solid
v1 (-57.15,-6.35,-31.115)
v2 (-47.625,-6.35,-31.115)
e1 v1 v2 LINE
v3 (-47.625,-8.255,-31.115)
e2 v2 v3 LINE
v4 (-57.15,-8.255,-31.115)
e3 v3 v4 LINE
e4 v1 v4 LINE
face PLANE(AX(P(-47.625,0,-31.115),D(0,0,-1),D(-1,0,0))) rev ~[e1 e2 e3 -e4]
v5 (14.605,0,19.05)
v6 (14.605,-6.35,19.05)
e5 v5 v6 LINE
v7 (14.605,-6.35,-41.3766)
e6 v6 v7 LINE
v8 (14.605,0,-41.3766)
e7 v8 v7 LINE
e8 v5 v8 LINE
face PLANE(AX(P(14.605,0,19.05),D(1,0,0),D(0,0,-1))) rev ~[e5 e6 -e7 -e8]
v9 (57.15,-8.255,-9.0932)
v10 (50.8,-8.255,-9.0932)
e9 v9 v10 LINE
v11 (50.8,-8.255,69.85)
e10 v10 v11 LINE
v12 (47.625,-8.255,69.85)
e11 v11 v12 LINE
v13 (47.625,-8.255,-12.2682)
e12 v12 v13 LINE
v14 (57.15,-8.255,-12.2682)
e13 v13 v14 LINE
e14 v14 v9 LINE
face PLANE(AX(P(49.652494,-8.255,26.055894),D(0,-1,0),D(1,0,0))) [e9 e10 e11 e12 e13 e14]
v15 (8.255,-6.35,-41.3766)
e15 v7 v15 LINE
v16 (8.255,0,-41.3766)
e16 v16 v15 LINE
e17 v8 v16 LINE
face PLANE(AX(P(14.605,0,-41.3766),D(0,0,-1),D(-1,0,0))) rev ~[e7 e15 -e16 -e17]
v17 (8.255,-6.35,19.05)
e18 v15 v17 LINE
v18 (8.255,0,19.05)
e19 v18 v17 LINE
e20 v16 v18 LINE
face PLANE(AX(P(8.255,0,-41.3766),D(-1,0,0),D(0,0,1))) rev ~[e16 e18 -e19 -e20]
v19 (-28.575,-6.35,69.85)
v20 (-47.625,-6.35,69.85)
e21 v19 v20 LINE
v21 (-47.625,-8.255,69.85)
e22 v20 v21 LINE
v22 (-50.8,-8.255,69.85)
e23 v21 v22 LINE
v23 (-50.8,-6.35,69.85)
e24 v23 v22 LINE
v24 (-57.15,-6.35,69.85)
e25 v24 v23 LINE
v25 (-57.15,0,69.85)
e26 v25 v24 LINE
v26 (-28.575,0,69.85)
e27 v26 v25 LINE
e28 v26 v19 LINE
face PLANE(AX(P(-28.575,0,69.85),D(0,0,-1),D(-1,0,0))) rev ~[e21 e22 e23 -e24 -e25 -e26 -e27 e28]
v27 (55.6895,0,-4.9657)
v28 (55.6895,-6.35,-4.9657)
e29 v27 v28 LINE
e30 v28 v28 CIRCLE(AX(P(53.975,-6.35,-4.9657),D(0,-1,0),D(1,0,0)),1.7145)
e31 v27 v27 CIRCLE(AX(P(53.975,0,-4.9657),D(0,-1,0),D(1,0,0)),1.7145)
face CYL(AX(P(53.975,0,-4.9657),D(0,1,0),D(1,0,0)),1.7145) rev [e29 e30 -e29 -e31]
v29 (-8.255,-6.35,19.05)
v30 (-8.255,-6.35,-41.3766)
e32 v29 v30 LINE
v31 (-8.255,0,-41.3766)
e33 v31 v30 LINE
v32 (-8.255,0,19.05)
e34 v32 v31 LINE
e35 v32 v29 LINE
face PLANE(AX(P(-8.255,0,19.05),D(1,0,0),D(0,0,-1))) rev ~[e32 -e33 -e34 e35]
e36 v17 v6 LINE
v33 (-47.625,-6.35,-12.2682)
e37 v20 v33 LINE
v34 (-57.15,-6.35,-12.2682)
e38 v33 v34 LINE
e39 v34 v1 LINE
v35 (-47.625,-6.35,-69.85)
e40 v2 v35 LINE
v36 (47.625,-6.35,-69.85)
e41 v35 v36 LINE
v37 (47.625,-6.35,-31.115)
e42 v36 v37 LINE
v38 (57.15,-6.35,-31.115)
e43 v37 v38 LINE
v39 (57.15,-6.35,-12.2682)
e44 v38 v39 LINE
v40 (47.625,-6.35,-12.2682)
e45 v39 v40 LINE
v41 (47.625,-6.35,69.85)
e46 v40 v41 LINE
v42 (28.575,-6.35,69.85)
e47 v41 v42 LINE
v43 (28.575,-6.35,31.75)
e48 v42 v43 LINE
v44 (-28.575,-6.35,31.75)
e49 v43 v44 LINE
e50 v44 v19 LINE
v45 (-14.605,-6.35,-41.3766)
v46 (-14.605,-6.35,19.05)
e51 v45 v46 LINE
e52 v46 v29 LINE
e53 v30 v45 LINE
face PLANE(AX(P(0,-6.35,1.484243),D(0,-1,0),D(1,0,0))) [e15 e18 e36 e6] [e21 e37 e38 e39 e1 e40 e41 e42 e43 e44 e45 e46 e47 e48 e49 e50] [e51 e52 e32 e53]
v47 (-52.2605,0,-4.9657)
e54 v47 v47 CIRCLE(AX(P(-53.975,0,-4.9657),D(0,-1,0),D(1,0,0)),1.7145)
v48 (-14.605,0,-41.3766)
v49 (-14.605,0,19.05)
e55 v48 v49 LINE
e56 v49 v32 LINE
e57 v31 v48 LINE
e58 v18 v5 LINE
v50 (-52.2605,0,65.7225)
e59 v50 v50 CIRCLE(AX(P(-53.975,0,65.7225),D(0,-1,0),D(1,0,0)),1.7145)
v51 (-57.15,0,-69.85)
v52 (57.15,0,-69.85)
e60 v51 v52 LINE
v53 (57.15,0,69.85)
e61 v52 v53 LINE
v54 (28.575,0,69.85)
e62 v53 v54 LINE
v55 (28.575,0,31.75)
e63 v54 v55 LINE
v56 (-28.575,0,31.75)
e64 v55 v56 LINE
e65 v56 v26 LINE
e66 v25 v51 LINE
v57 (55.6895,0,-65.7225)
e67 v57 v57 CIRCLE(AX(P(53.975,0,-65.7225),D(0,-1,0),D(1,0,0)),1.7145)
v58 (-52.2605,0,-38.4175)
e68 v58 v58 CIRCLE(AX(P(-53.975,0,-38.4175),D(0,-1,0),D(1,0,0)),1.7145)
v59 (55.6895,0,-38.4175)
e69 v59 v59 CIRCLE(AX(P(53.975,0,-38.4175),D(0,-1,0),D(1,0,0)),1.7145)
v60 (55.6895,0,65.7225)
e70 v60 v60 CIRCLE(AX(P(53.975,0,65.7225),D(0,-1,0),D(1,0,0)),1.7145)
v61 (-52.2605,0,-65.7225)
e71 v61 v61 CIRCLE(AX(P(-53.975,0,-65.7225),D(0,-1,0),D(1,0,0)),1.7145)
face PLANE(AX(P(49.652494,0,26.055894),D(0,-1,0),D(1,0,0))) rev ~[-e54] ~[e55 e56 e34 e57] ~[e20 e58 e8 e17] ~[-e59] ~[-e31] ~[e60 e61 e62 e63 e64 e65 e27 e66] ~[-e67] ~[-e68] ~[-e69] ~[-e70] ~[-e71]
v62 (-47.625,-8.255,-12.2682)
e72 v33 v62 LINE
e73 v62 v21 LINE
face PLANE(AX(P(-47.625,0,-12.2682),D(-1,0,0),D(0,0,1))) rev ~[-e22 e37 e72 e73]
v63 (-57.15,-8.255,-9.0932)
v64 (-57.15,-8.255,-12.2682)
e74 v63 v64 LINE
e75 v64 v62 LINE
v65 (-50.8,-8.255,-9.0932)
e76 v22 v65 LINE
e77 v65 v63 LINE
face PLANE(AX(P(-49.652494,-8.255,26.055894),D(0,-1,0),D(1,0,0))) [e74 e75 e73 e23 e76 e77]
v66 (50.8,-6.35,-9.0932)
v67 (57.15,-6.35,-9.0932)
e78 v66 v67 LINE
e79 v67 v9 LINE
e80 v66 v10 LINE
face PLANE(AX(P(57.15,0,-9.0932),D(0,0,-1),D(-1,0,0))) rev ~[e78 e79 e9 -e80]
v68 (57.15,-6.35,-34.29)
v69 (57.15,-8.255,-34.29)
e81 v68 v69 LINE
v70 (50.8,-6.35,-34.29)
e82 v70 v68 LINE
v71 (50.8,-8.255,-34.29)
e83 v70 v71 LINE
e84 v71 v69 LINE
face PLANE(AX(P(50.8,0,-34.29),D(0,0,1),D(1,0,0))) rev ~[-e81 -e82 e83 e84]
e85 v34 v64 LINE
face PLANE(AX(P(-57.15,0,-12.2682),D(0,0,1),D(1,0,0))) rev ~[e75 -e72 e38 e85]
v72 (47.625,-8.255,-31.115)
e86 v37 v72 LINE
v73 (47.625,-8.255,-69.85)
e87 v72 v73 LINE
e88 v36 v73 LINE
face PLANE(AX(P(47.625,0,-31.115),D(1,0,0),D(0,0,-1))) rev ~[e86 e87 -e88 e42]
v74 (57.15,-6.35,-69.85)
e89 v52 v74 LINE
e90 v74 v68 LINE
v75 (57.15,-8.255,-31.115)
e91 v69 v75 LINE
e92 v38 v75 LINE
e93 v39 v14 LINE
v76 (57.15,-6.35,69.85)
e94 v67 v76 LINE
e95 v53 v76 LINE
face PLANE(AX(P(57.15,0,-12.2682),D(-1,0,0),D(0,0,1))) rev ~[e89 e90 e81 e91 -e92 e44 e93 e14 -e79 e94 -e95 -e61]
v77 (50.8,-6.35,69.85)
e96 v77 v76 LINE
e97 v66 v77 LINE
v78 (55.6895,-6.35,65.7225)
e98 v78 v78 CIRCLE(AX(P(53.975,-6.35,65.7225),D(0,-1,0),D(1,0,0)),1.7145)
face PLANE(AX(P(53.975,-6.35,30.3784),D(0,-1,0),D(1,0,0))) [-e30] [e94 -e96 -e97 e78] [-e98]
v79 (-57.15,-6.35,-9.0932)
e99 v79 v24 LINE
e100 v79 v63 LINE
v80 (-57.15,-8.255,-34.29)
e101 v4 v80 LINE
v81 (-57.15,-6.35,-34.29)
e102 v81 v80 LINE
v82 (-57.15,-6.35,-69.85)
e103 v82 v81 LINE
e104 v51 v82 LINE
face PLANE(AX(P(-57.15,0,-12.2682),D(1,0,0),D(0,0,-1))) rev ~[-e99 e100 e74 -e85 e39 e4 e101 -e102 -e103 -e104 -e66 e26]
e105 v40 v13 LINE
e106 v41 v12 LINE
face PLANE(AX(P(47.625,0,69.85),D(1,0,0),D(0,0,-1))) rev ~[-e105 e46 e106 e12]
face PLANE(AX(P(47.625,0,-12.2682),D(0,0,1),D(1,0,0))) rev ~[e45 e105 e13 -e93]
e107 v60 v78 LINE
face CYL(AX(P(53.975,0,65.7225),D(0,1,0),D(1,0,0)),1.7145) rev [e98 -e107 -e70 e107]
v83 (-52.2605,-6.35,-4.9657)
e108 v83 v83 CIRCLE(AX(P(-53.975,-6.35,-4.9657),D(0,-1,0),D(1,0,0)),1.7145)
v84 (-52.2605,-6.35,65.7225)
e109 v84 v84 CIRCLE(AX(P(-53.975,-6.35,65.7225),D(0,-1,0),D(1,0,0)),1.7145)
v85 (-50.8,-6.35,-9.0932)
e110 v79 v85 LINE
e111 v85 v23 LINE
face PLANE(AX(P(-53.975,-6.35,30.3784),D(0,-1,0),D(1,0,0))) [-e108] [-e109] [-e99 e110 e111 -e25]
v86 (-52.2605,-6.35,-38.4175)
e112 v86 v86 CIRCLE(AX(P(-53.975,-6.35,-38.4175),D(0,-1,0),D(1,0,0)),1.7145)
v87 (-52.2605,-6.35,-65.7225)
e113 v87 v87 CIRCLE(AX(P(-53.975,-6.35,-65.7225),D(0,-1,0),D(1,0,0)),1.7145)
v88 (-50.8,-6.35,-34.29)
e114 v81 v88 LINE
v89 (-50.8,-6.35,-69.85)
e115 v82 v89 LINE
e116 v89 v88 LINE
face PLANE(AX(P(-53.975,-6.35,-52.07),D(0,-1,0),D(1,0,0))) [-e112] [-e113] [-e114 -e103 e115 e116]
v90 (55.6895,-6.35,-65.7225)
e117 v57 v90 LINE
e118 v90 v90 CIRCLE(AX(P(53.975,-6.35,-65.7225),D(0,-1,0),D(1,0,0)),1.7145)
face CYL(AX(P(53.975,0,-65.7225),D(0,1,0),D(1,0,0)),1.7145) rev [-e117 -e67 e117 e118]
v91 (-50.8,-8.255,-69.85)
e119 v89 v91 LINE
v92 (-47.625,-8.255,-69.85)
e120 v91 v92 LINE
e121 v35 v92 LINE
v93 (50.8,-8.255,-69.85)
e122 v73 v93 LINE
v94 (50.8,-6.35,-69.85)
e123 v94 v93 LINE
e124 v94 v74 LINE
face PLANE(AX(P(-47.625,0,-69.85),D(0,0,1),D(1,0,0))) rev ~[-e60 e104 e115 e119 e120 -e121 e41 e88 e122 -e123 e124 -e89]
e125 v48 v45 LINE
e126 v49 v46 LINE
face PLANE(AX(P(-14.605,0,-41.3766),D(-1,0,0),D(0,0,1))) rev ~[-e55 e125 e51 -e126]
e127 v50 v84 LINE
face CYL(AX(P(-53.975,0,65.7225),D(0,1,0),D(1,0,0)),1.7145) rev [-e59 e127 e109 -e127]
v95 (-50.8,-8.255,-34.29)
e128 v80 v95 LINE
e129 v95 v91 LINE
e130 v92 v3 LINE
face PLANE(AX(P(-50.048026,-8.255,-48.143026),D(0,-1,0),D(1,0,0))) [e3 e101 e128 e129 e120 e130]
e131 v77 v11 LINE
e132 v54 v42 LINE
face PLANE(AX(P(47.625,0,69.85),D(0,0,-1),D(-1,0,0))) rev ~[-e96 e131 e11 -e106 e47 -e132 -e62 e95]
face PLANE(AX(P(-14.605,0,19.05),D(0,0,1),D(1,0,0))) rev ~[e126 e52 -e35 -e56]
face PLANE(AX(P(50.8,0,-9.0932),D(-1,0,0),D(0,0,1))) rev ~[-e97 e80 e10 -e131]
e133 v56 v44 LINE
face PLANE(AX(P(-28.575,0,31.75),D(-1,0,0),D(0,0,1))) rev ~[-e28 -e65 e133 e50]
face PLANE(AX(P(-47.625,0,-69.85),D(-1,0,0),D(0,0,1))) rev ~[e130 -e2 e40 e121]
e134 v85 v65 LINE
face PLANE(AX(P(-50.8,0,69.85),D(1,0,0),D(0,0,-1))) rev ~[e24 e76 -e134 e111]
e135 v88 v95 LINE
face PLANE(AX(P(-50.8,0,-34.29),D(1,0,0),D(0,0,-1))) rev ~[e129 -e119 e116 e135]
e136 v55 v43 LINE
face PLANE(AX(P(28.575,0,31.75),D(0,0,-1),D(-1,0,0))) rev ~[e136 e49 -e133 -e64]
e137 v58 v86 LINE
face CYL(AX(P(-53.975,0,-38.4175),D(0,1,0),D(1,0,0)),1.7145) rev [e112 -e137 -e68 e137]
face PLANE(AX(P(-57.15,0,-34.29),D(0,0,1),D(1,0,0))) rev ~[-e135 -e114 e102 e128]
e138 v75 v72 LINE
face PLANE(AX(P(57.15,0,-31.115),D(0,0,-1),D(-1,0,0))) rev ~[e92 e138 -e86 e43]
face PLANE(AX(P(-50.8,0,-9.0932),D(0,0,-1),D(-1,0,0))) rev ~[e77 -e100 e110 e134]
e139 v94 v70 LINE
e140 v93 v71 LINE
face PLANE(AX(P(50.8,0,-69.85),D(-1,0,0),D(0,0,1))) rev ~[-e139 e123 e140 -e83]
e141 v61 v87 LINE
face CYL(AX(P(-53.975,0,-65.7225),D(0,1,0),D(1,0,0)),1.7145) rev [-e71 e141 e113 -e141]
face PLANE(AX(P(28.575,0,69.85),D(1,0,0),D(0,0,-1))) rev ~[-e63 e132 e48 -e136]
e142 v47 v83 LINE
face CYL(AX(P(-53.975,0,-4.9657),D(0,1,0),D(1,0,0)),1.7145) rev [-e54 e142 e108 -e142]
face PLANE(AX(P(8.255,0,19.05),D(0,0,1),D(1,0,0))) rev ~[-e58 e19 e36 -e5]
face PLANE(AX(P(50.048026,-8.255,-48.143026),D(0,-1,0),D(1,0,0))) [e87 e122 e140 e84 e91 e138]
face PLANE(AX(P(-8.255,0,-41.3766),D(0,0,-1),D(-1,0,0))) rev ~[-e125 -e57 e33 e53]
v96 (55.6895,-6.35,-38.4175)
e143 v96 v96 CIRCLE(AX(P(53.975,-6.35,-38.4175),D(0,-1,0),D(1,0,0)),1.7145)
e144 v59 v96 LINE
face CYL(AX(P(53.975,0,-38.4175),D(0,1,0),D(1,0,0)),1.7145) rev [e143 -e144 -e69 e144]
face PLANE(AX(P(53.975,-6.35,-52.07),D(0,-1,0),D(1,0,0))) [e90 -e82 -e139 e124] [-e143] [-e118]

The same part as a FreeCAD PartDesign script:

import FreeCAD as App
import Part
import Sketcher
Q = App.Units.Quantity


def add_polygon(sketch, points):
    """Adds a closed chain of lines whose ends are joined by coincident constraints."""
    first, n = sketch.GeometryCount, len(points)
    for a, b in zip(points, points[1:] + points[:1]):
        sketch.addGeometry(Part.LineSegment(App.Vector(*a, 0), App.Vector(*b, 0)), False)
    for i in range(n):
        sketch.addConstraint(Sketcher.Constraint("Coincident", first + i, 2, first + (i + 1) % n, 1))

doc = App.newDocument("Part")
body = doc.addObject("PartDesign::Body", "Body")
body.AllowCompound = True

# Sketch on XZ plane
sketch1 = body.newObject("Sketcher::SketchObject", "Sketch")
sketch1.AttachmentSupport = (doc.getObject("XZ_Plane"), [""])
sketch1.MapMode = "FlatFace"
add_polygon(sketch1, [(-57.15, 69.85), (-57.15, -9.0932), (-50.8, -9.0932), (-50.8, 69.85)])  # lines 0-3
sketch1.addGeometry(Part.Circle(App.Vector(-53.975, -4.9657, 0), App.Vector(0, 0, 1), 1.7145), False)  # 4
sketch1.addGeometry(Part.Circle(App.Vector(-53.975, 65.7225, 0), App.Vector(0, 0, 1), 1.7145), False)  # 5
add_polygon(sketch1, [(-57.15, -34.29), (-57.15, -69.85), (-50.8, -69.85), (-50.8, -34.29)])  # lines 6-9
sketch1.addGeometry(Part.Circle(App.Vector(-53.975, -65.7225, 0), App.Vector(0, 0, 1), 1.7145), False)  # 10
sketch1.addGeometry(Part.Circle(App.Vector(-53.975, -38.4175, 0), App.Vector(0, 0, 1), 1.7145), False)  # 11
add_polygon(sketch1, [(50.8, -34.29), (50.8, -69.85), (57.15, -69.85), (57.15, -34.29)])  # lines 12-15
sketch1.addGeometry(Part.Circle(App.Vector(53.975, -65.7225, 0), App.Vector(0, 0, 1), 1.7145), False)  # 16
sketch1.addGeometry(Part.Circle(App.Vector(53.975, -38.4175, 0), App.Vector(0, 0, 1), 1.7145), False)  # 17
add_polygon(sketch1, [(50.8, 69.85), (50.8, -9.0932), (57.15, -9.0932), (57.15, 69.85)])  # lines 18-21
sketch1.addGeometry(Part.Circle(App.Vector(53.975, -4.9657, 0), App.Vector(0, 0, 1), 1.7145), False)  # 22
sketch1.addGeometry(Part.Circle(App.Vector(53.975, 65.7225, 0), App.Vector(0, 0, 1), 1.7145), False)  # 23
add_polygon(sketch1, [(-47.625, -69.85), (47.625, -69.85), (47.625, -31.115), (57.15, -31.115), (57.15, -12.2682), (47.625, -12.2682), (47.625, 69.85), (28.575, 69.85), (28.575, 31.75), (-28.575, 31.75), (-28.575, 69.85), (-47.625, 69.85), (-47.625, -12.2682), (-57.15, -12.2682), (-57.15, -31.115), (-47.625, -31.115)])  # lines 24-39
add_polygon(sketch1, [(-14.605, -41.3766), (-14.605, 19.05), (-8.255, 19.05), (-8.255, -41.3766)])  # lines 40-43
add_polygon(sketch1, [(8.255, -41.3766), (8.255, 19.05), (14.605, 19.05), (14.605, -41.3766)])  # lines 44-47
sketch1.addConstraint(Sketcher.Constraint("Vertical", 0))
sketch1.addConstraint(Sketcher.Constraint("Horizontal", 1))
sketch1.addConstraint(Sketcher.Constraint("Vertical", 2))
sketch1.addConstraint(Sketcher.Constraint("Horizontal", 3))
sketch1.addConstraint(Sketcher.Constraint("Vertical", 6))
sketch1.addConstraint(Sketcher.Constraint("Horizontal", 7))
sketch1.addConstraint(Sketcher.Constraint("Vertical", 8))
sketch1.addConstraint(Sketcher.Constraint("Horizontal", 9))
sketch1.addConstraint(Sketcher.Constraint("Vertical", 12))
sketch1.addConstraint(Sketcher.Constraint("Horizontal", 13))
sketch1.addConstraint(Sketcher.Constraint("Vertical", 14))
sketch1.addConstraint(Sketcher.Constraint("Horizontal", 15))
sketch1.addConstraint(Sketcher.Constraint("Vertical", 18))
sketch1.addConstraint(Sketcher.Constraint("Horizontal", 19))
sketch1.addConstraint(Sketcher.Constraint("Vertical", 20))
sketch1.addConstraint(Sketcher.Constraint("Horizontal", 21))
sketch1.addConstraint(Sketcher.Constraint("Horizontal", 24))
sketch1.addConstraint(Sketcher.Constraint("Vertical", 25))
sketch1.addConstraint(Sketcher.Constraint("Horizontal", 26))
sketch1.addConstraint(Sketcher.Constraint("Vertical", 27))
sketch1.addConstraint(Sketcher.Constraint("Horizontal", 28))
sketch1.addConstraint(Sketcher.Constraint("Vertical", 29))
sketch1.addConstraint(Sketcher.Constraint("Horizontal", 30))
sketch1.addConstraint(Sketcher.Constraint("Vertical", 31))
sketch1.addConstraint(Sketcher.Constraint("Horizontal", 32))
sketch1.addConstraint(Sketcher.Constraint("Vertical", 33))
sketch1.addConstraint(Sketcher.Constraint("Horizontal", 34))
sketch1.addConstraint(Sketcher.Constraint("Vertical", 35))
sketch1.addConstraint(Sketcher.Constraint("Horizontal", 36))
sketch1.addConstraint(Sketcher.Constraint("Vertical", 37))
sketch1.addConstraint(Sketcher.Constraint("Horizontal", 38))
sketch1.addConstraint(Sketcher.Constraint("Vertical", 39))
sketch1.addConstraint(Sketcher.Constraint("Vertical", 40))
sketch1.addConstraint(Sketcher.Constraint("Horizontal", 41))
sketch1.addConstraint(Sketcher.Constraint("Vertical", 42))
sketch1.addConstraint(Sketcher.Constraint("Horizontal", 43))
sketch1.addConstraint(Sketcher.Constraint("Vertical", 44))
sketch1.addConstraint(Sketcher.Constraint("Horizontal", 45))
sketch1.addConstraint(Sketcher.Constraint("Vertical", 46))
sketch1.addConstraint(Sketcher.Constraint("Horizontal", 47))
sketch1.addConstraint(Sketcher.Constraint("Equal", 4, 5))
sketch1.addConstraint(Sketcher.Constraint("Equal", 5, 10))
sketch1.addConstraint(Sketcher.Constraint("Equal", 10, 11))
sketch1.addConstraint(Sketcher.Constraint("Equal", 11, 16))
sketch1.addConstraint(Sketcher.Constraint("Equal", 16, 17))
sketch1.addConstraint(Sketcher.Constraint("Equal", 17, 22))
sketch1.addConstraint(Sketcher.Constraint("Equal", 22, 23))
sketch1.addConstraint(Sketcher.Constraint("Symmetric", 5, 3, 16, 3, -1, 1))
sketch1.addConstraint(Sketcher.Constraint("Symmetric", 10, 3, 23, 3, -1, 1))
sketch1.addConstraint(Sketcher.Constraint("Symmetric", 2, 2, 12, 2, -1, 1))
sketch1.addConstraint(Sketcher.Constraint("Symmetric", 6, 2, 20, 2, -1, 1))
sketch1.addConstraint(Sketcher.Constraint("Symmetric", 24, 2, 34, 2, -1, 1))
sketch1.addConstraint(Sketcher.Constraint("Symmetric", 29, 2, 39, 2, -1, 1))
sketch1.addConstraint(Sketcher.Constraint("Symmetric", 10, 3, 16, 3, -2))
sketch1.addConstraint(Sketcher.Constraint("Symmetric", 11, 3, 17, 3, -2))
sketch1.addConstraint(Sketcher.Constraint("Symmetric", 4, 3, 22, 3, -2))
sketch1.addConstraint(Sketcher.Constraint("Symmetric", 7, 2, 12, 2, -2))
sketch1.addConstraint(Sketcher.Constraint("Symmetric", 9, 2, 14, 2, -2))
sketch1.addConstraint(Sketcher.Constraint("Symmetric", 1, 2, 18, 2, -2))
sketch1.addConstraint(Sketcher.Constraint("Symmetric", 28, 2, 35, 2, -2))
sketch1.addConstraint(Sketcher.Constraint("Symmetric", 26, 2, 37, 2, -2))
sketch1.addConstraint(Sketcher.Constraint("Symmetric", 41, 2, 44, 2, -2))
sketch1.addConstraint(Sketcher.Constraint("Symmetric", 43, 2, 46, 2, -2))
sketch1.addConstraint(Sketcher.Constraint("Horizontal", 13, 2, 24, 2))
sketch1.addConstraint(Sketcher.Constraint("Vertical", 4, 3, 5, 3))
sketch1.addConstraint(Sketcher.Constraint("Vertical", 10, 3, 11, 3))
sketch1.addConstraint(Sketcher.Constraint("Vertical", 3, 2, 6, 2))
sketch1.addConstraint(Sketcher.Constraint("Vertical", 20, 2, 26, 2))
sketch1.addConstraint(Sketcher.Constraint("Equal", 30, 34))
sketch1.addConstraint(Sketcher.Constraint("Equal", 21, 41))
sketch1.addConstraint(Sketcher.Constraint("Diameter", 4, Q("0.135 in")))
sketch1.addConstraint(Sketcher.Constraint("DistanceY", 6, 2, 6, 1, Q("1.4 in")))
sketch1.addConstraint(Sketcher.Constraint("DistanceY", 31, 2, 31, 1, Q("1.5 in")))
sketch1.addConstraint(Sketcher.Constraint("DistanceX", 1, 2, -1, 1, Q("2 in")))
sketch1.addConstraint(Sketcher.Constraint("DistanceX", 30, 2, 23, 3, Q("1 in")))
sketch1.addConstraint(Sketcher.Constraint("DistanceX", 1, 1, 1, 2, Q("0.25 in")))
sketch1.addConstraint(Sketcher.Constraint("DistanceX", 24, 1, 24, 2, Q("3.75 in")))
sketch1.addConstraint(Sketcher.Constraint("DistanceX", 30, 2, 30, 1, Q("0.75 in")))
sketch1.addConstraint(Sketcher.Constraint("DistanceY", 11, 3, 5, 3, Q("4.1 in")))
sketch1.addConstraint(Sketcher.Constraint("DistanceY", 14, 2, 20, 2, Q("4.1 in")))
sketch1.addConstraint(Sketcher.Constraint("DistanceY", 40, 2, 32, 2, Q("0.5 in")))
sketch1.addConstraint(Sketcher.Constraint("DistanceX", 40, 2, 31, 2, Q("1.7 in")))
sketch1.addConstraint(Sketcher.Constraint("DistanceY", 0, 2, 0, 1, Q("3.108 in")))
sketch1.addConstraint(Sketcher.Constraint("DistanceY", 25, 1, 25, 2, Q("1.525 in")))
sketch1.addConstraint(Sketcher.Constraint("DistanceY", 27, 1, 27, 2, Q("0.742 in")))
sketch1.addConstraint(Sketcher.Constraint("DistanceY", 40, 1, 40, 2, Q("2.379 in")))
sketch1.addConstraint(Sketcher.Constraint("DistanceY", 4, 3, 5, 3, Q("2.783 in")))
sketch1.addConstraint(Sketcher.Constraint("DistanceY", 10, 3, 4, 3, Q("2.392 in")))
pad1 = body.newObject("PartDesign::Pad", "Pad")
pad1.Profile = sketch1
pad1.Length = Q("0.25 in")

# Sketch on XZ plane
sketch2 = body.newObject("Sketcher::SketchObject", "Sketch001")
sketch2.AttachmentSupport = (doc.getObject("XZ_Plane"), [""])
sketch2.MapMode = "FlatFace"
add_polygon(sketch2, [(47.625, -12.2682), (57.15, -12.2682), (57.15, -9.0932), (50.8, -9.0932), (50.8, 69.85), (47.625, 69.85)])  # lines 0-5
add_polygon(sketch2, [(47.625, -69.85), (50.8, -69.85), (50.8, -34.29), (57.15, -34.29), (57.15, -31.115), (47.625, -31.115)])  # lines 6-11
add_polygon(sketch2, [(-57.15, -9.0932), (-57.15, -12.2682), (-47.625, -12.2682), (-47.625, 69.85), (-50.8, 69.85), (-50.8, -9.0932)])  # lines 12-17
add_polygon(sketch2, [(-50.8, -69.85), (-47.625, -69.85), (-47.625, -31.115), (-57.15, -31.115), (-57.15, -34.29), (-50.8, -34.29)])  # lines 18-23
sketch2.addConstraint(Sketcher.Constraint("Horizontal", 0))
sketch2.addConstraint(Sketcher.Constraint("Vertical", 1))
sketch2.addConstraint(Sketcher.Constraint("Horizontal", 2))
sketch2.addConstraint(Sketcher.Constraint("Vertical", 3))
sketch2.addConstraint(Sketcher.Constraint("Horizontal", 4))
sketch2.addConstraint(Sketcher.Constraint("Vertical", 5))
sketch2.addConstraint(Sketcher.Constraint("Horizontal", 6))
sketch2.addConstraint(Sketcher.Constraint("Vertical", 7))
sketch2.addConstraint(Sketcher.Constraint("Horizontal", 8))
sketch2.addConstraint(Sketcher.Constraint("Vertical", 9))
sketch2.addConstraint(Sketcher.Constraint("Horizontal", 10))
sketch2.addConstraint(Sketcher.Constraint("Vertical", 11))
sketch2.addConstraint(Sketcher.Constraint("Vertical", 12))
sketch2.addConstraint(Sketcher.Constraint("Horizontal", 13))
sketch2.addConstraint(Sketcher.Constraint("Vertical", 14))
sketch2.addConstraint(Sketcher.Constraint("Horizontal", 15))
sketch2.addConstraint(Sketcher.Constraint("Vertical", 16))
sketch2.addConstraint(Sketcher.Constraint("Horizontal", 17))
sketch2.addConstraint(Sketcher.Constraint("Horizontal", 18))
sketch2.addConstraint(Sketcher.Constraint("Vertical", 19))
sketch2.addConstraint(Sketcher.Constraint("Horizontal", 20))
sketch2.addConstraint(Sketcher.Constraint("Vertical", 21))
sketch2.addConstraint(Sketcher.Constraint("Horizontal", 22))
sketch2.addConstraint(Sketcher.Constraint("Vertical", 23))
sketch2.addConstraint(Sketcher.Constraint("Symmetric", 11, 2, 14, 2, -1, 1))
sketch2.addConstraint(Sketcher.Constraint("Symmetric", 4, 2, 18, 2, -1, 1))
sketch2.addConstraint(Sketcher.Constraint("Symmetric", 0, 2, 12, 2, -2))
sketch2.addConstraint(Sketcher.Constraint("Symmetric", 4, 2, 14, 2, -2))
sketch2.addConstraint(Sketcher.Constraint("Symmetric", 2, 2, 16, 2, -2))
sketch2.addConstraint(Sketcher.Constraint("Symmetric", 9, 2, 20, 2, -2))
sketch2.addConstraint(Sketcher.Constraint("Symmetric", 7, 2, 22, 2, -2))
sketch2.addConstraint(Sketcher.Constraint("Vertical", 3, 2, 6, 2))
sketch2.addConstraint(Sketcher.Constraint("Vertical", 1, 2, 8, 2))
sketch2.addConstraint(Sketcher.Constraint("Equal", 18, 1))
sketch2.addConstraint(Sketcher.Constraint("Equal", 1, 9))
sketch2.addConstraint(Sketcher.Constraint("DistanceY", 7, 1, 7, 2, Q("1.4 in")))
sketch2.addConstraint(Sketcher.Constraint("DistanceX", -1, 1, 2, 2, Q("2 in")))
sketch2.addConstraint(Sketcher.Constraint("DistanceX", 2, 2, 2, 1, Q("0.25 in")))
sketch2.addConstraint(Sketcher.Constraint("DistanceY", 6, 2, 3, 2, Q("5.5 in")))
sketch2.addConstraint(Sketcher.Constraint("DistanceX", 0, 1, 0, 2, Q("0.375 in")))
sketch2.addConstraint(Sketcher.Constraint("DistanceY", 3, 1, 3, 2, Q("3.108 in")))
pad2 = body.newObject("PartDesign::Pad", "Pad001")
pad2.Profile = sketch2
pad2.Length = Q("0.325 in")

doc.recompute()
